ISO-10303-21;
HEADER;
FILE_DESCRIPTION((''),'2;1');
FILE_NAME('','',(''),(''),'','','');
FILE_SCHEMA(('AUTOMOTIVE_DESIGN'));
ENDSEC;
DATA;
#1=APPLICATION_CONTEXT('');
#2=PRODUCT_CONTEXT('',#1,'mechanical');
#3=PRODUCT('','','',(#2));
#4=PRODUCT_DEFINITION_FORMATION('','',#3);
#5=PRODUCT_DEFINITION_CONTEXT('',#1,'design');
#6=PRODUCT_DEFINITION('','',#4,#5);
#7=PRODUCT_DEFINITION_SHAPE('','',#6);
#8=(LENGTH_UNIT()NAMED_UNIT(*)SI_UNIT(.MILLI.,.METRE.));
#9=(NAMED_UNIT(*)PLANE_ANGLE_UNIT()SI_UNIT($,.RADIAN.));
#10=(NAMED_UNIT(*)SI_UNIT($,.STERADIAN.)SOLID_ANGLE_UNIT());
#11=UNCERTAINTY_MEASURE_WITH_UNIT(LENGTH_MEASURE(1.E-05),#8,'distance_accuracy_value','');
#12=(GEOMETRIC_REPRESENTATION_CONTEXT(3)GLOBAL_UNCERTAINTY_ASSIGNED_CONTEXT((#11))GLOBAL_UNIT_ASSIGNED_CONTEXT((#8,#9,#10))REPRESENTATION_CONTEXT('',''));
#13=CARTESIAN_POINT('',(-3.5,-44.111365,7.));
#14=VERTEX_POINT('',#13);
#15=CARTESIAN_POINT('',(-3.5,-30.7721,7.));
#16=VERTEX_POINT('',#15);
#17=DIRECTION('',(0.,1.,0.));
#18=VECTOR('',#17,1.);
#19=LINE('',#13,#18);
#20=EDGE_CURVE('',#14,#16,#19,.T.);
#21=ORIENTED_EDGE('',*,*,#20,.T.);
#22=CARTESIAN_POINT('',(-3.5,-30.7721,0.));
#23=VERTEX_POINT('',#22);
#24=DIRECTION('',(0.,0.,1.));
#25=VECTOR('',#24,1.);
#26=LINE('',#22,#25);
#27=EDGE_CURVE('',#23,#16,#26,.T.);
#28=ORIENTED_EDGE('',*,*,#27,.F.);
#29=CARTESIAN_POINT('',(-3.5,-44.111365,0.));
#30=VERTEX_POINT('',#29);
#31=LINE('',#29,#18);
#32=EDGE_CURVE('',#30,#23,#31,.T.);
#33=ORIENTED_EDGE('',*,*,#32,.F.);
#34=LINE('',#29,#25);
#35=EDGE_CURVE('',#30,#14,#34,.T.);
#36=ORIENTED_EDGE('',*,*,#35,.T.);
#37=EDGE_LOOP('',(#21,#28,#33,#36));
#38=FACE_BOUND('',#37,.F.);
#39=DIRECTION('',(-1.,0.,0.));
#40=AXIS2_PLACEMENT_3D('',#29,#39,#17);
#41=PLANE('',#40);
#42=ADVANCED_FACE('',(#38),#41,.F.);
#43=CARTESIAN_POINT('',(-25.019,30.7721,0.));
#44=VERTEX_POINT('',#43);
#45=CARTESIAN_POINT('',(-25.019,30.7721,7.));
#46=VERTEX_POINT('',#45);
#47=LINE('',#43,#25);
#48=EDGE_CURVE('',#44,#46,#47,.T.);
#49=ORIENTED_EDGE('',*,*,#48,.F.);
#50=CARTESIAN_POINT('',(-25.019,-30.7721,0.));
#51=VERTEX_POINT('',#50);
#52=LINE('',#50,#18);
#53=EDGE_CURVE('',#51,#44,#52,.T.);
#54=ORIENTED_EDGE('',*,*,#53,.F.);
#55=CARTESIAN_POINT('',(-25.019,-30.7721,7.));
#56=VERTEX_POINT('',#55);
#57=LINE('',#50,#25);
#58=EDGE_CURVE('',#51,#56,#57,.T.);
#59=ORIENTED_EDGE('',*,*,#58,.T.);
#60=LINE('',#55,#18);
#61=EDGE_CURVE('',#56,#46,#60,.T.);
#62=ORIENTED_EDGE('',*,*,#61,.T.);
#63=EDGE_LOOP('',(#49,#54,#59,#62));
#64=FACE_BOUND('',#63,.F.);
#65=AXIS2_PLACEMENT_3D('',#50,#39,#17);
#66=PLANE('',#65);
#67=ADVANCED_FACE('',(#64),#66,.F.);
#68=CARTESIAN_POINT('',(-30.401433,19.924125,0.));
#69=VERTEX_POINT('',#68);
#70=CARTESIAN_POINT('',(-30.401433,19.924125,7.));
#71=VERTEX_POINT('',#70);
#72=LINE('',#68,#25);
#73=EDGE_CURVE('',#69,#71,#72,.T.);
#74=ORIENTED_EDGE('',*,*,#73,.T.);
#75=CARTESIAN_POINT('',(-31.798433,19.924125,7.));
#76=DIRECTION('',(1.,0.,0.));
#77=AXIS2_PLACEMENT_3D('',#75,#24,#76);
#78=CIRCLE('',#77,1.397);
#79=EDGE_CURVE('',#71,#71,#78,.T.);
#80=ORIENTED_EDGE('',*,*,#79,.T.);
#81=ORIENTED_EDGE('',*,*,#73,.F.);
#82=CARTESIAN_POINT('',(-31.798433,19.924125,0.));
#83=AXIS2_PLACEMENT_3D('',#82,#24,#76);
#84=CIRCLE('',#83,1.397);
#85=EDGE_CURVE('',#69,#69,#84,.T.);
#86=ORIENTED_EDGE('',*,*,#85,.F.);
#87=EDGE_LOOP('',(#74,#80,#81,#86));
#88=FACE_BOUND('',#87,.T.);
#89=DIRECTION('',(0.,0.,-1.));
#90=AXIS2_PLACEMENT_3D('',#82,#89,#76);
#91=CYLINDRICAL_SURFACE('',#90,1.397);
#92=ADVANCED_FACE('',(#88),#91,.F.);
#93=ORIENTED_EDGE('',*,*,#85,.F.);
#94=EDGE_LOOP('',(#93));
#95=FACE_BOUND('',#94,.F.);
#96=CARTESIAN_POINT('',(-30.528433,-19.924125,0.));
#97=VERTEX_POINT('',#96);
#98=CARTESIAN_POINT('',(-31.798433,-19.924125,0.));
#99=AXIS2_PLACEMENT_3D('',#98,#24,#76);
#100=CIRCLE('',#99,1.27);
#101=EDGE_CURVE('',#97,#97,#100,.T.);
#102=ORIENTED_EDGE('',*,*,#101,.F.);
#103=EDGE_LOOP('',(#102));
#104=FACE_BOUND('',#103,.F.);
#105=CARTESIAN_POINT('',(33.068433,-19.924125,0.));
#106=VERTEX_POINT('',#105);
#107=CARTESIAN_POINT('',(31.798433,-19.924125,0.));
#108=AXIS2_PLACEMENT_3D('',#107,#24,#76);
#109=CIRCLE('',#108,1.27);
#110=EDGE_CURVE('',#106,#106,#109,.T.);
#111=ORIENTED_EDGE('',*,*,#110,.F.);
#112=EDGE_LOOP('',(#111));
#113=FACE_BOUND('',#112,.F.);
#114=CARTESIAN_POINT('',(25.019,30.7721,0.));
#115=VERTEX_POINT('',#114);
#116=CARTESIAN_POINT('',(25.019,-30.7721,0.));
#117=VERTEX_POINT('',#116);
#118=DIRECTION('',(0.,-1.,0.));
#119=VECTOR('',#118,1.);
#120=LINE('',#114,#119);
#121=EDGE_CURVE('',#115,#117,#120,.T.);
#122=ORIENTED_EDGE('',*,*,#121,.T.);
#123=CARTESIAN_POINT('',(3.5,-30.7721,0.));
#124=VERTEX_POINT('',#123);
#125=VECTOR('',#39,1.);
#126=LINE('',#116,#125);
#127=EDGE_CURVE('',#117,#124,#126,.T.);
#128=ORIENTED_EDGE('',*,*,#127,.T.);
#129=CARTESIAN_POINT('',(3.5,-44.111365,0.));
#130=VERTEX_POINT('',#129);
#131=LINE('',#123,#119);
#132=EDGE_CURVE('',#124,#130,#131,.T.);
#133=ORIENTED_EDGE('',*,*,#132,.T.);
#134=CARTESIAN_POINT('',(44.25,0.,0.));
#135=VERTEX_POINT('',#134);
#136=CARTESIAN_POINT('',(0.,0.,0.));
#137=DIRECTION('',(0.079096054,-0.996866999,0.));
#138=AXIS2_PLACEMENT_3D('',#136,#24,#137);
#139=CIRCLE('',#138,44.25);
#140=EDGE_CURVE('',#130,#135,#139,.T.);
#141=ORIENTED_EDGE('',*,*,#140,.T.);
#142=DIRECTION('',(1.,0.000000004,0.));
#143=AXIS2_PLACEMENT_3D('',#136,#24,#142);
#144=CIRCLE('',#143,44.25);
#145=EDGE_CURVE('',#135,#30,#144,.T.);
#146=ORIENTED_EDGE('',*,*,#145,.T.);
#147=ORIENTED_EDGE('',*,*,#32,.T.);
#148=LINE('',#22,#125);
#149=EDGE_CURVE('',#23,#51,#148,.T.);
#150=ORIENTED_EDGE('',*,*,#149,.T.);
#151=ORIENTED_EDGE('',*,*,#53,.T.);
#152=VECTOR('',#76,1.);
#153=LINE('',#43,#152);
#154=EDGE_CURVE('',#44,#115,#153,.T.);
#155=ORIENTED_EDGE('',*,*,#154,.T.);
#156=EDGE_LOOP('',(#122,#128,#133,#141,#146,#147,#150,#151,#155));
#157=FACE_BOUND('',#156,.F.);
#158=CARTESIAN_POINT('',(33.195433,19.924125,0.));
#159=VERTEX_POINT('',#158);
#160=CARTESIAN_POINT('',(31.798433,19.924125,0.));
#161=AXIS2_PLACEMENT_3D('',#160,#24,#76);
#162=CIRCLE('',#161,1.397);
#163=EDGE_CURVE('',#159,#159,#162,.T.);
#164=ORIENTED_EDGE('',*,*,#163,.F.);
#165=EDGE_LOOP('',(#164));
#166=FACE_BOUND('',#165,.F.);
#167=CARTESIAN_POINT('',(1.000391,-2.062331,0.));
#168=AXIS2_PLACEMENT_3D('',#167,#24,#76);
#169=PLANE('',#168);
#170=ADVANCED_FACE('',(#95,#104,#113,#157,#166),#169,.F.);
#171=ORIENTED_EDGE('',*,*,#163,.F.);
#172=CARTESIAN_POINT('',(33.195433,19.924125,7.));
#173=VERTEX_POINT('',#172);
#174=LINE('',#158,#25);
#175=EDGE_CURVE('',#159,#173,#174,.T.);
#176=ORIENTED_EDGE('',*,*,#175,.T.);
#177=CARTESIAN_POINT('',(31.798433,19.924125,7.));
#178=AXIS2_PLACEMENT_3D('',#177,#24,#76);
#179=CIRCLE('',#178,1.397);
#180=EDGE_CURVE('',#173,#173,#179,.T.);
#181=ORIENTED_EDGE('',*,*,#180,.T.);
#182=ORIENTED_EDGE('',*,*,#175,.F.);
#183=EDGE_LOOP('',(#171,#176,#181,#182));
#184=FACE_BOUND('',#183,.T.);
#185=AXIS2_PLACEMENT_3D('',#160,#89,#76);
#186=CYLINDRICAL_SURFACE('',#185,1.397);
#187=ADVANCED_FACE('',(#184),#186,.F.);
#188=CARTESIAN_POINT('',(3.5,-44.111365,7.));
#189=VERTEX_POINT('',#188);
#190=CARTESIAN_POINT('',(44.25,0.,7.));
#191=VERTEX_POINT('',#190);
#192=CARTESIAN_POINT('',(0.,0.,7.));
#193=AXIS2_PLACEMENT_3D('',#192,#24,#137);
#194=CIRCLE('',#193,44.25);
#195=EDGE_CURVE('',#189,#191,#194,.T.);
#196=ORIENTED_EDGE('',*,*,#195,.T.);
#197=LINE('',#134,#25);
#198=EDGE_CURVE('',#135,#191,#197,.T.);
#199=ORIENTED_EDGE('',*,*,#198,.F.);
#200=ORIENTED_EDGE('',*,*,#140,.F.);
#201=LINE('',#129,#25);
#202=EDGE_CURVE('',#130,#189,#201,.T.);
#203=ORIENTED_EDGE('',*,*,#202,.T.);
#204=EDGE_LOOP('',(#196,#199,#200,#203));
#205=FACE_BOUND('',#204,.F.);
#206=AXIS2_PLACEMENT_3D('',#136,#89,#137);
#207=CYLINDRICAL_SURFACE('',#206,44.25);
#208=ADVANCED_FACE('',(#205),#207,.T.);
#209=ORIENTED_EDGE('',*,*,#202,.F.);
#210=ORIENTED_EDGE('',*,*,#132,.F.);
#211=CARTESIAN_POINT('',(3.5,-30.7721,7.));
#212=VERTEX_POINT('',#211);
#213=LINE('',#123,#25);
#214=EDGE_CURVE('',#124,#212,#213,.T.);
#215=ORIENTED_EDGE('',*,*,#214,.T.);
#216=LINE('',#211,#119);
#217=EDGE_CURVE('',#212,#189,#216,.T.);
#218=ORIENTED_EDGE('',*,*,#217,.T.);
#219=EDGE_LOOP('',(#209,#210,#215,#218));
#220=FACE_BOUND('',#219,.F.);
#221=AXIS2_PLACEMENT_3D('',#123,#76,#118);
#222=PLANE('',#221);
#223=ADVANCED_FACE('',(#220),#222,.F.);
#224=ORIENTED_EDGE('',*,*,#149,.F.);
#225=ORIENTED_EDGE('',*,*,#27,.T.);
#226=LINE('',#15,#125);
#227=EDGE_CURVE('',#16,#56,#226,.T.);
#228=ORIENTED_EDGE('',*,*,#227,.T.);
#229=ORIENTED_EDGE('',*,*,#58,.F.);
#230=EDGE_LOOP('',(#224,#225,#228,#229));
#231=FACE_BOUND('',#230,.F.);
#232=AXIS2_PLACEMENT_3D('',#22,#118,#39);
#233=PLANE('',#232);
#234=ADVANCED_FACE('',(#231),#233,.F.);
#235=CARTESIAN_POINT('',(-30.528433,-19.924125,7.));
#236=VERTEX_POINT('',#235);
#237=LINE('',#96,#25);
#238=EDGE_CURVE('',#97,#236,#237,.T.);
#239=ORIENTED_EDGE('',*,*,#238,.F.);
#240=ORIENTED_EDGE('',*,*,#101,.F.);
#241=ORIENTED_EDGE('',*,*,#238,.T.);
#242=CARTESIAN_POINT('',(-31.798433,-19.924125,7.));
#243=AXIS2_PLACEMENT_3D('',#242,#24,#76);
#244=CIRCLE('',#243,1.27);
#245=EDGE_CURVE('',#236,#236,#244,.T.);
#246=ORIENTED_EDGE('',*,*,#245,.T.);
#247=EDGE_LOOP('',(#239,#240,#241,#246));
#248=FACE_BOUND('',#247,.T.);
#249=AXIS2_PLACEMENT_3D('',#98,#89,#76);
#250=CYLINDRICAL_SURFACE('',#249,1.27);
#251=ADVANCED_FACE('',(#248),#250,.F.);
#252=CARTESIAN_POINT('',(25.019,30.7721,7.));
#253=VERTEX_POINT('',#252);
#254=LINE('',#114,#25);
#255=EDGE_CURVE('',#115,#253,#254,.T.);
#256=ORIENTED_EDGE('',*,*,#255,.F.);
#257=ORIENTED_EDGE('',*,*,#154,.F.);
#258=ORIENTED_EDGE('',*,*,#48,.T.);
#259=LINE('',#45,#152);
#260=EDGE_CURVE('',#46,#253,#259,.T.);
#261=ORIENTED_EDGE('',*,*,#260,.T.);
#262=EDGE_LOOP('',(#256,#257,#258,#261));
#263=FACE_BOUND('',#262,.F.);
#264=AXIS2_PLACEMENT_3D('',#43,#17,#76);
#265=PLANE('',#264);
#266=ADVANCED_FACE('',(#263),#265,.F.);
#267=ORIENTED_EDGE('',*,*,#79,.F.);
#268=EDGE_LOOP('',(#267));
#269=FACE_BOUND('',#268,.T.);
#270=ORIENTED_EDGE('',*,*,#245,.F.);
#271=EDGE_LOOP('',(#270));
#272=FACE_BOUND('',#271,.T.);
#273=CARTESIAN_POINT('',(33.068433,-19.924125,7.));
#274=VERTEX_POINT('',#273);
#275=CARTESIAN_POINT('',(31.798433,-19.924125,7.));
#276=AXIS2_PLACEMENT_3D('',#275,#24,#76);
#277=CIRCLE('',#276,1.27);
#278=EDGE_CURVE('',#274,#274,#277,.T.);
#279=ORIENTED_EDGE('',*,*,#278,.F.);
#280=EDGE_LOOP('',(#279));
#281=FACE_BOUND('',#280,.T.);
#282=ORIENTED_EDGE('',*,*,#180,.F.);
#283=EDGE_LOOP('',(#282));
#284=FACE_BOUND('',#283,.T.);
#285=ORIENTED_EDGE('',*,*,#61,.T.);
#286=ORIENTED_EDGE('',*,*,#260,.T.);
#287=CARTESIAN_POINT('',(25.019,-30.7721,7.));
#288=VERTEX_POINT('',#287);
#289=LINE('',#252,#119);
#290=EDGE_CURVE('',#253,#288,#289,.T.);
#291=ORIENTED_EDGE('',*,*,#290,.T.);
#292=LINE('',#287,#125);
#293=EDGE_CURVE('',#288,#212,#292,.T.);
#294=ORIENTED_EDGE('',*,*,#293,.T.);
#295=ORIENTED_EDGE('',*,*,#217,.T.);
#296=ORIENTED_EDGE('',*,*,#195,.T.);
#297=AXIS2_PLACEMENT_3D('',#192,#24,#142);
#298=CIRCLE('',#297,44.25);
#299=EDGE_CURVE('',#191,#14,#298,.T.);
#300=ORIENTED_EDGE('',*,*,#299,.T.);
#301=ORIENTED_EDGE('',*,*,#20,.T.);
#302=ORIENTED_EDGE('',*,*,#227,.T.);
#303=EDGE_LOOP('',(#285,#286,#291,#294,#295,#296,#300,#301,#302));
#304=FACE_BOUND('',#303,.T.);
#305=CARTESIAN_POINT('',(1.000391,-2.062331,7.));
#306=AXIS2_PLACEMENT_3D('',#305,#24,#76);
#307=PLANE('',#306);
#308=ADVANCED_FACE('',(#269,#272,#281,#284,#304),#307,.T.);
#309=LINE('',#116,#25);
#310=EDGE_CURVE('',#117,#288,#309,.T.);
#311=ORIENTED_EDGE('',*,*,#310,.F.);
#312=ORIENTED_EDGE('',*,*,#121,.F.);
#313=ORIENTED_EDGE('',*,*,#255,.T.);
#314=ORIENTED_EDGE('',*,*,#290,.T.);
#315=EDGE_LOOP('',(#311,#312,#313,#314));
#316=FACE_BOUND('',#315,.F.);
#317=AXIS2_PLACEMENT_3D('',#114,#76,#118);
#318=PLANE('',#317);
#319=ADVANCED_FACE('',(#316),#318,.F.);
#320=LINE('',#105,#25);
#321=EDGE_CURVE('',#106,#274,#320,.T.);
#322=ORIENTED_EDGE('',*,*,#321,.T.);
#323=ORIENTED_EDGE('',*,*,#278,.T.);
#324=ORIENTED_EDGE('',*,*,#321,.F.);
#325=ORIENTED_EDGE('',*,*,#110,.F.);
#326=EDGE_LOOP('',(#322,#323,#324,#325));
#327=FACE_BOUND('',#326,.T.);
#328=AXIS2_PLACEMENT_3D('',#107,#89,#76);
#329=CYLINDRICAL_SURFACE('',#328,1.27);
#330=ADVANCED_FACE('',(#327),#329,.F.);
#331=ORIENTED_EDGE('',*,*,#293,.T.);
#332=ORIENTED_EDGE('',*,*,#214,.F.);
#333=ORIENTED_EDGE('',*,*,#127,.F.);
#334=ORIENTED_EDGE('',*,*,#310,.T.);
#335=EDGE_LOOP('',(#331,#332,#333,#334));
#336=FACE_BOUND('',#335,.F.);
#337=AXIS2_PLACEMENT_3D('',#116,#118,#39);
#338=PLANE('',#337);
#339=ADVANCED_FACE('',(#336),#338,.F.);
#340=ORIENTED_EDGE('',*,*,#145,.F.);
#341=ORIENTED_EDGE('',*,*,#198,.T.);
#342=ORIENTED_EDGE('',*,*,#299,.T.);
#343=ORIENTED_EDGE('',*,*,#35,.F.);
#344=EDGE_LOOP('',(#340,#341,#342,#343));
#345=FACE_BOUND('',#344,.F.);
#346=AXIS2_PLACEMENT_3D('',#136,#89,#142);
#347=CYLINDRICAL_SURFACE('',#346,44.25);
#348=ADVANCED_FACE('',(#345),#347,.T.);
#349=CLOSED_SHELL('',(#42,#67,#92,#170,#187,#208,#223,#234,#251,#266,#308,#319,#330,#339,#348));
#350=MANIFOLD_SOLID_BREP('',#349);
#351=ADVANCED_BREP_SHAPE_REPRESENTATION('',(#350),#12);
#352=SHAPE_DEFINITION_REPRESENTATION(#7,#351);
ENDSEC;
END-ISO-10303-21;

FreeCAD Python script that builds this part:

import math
import FreeCAD as App
import Part
import Sketcher
from FreeCAD import Vector
Q = App.Units.Quantity

doc = App.newDocument("Part")
body = doc.addObject("PartDesign::Body", "Body")

# Sketch on XY plane
sketch1 = body.newObject("Sketcher::SketchObject", "Sketch")
sketch1.AttachmentSupport = (doc.getObject("XY_Plane"), [""])
sketch1.MapMode = "FlatFace"
sketch1.addGeometry([
    Part.ArcOfCircle(Part.Circle(Vector(0, 0, 0), Vector(0, 0, 1), 44.25), math.radians(-85.463391), math.radians(0)),  # 0
    Part.ArcOfCircle(Part.Circle(Vector(0, 0, 0), Vector(0, 0, 1), 44.25), math.radians(0), math.radians(265.463392)),  # 1
    Part.LineSegment(Vector(-3.5, -44.111365, 0), Vector(-3.5, -30.7721, 0)),  # 2
    Part.LineSegment(Vector(-3.5, -30.7721, 0), Vector(-25.019, -30.7721, 0)),  # 3
    Part.LineSegment(Vector(-25.019, -30.7721, 0), Vector(-25.019, 30.7721, 0)),  # 4
    Part.LineSegment(Vector(-25.019, 30.7721, 0), Vector(25.019, 30.7721, 0)),  # 5
    Part.LineSegment(Vector(25.019, 30.7721, 0), Vector(25.019, -30.7721, 0)),  # 6
    Part.LineSegment(Vector(25.019, -30.7721, 0), Vector(3.5, -30.7721, 0)),  # 7
    Part.LineSegment(Vector(3.5, -30.7721, 0), Vector(3.5, -44.111365, 0)),  # 8
    Part.Circle(Vector(-31.798433, -19.924125, 0), Vector(0, 0, 1), 1.27),  # 9
    Part.Circle(Vector(31.798433, -19.924125, 0), Vector(0, 0, 1), 1.27),  # 10
    Part.Circle(Vector(-31.798433, 19.924125, 0), Vector(0, 0, 1), 1.397),  # 11
    Part.Circle(Vector(31.798433, 19.924125, 0), Vector(0, 0, 1), 1.397),  # 12
], False)
sketch1.addConstraint([
    Sketcher.Constraint("Tangent", 0, 2, 1, 1),
    Sketcher.Constraint("Coincident", 1, 2, 2, 1),
    Sketcher.Constraint("Coincident", 2, 2, 3, 1),
    Sketcher.Constraint("Coincident", 3, 2, 4, 1),
    Sketcher.Constraint("Coincident", 4, 2, 5, 1),
    Sketcher.Constraint("Coincident", 5, 2, 6, 1),
    Sketcher.Constraint("Coincident", 6, 2, 7, 1),
    Sketcher.Constraint("Coincident", 7, 2, 8, 1),
    Sketcher.Constraint("Coincident", 8, 2, 0, 1),
    Sketcher.Constraint("Vertical", 2),
    Sketcher.Constraint("Horizontal", 3),
    Sketcher.Constraint("Vertical", 4),
    Sketcher.Constraint("Horizontal", 5),
    Sketcher.Constraint("Vertical", 6),
    Sketcher.Constraint("Horizontal", 7),
    Sketcher.Constraint("Vertical", 8),
    Sketcher.Constraint("Coincident", 0, 3, -1, 1),
    Sketcher.Constraint("Equal", 0, 1),
    Sketcher.Constraint("Equal", 9, 10),
    Sketcher.Constraint("Equal", 11, 12),
    Sketcher.Constraint("Symmetric", 10, 3, 11, 3, -1, 1),
    Sketcher.Constraint("Symmetric", 9, 3, 12, 3, -1, 1),
    Sketcher.Constraint("Symmetric", 3, 2, 5, 2, -1, 1),
    Sketcher.Constraint("Symmetric", 9, 3, 10, 3, -2),
    Sketcher.Constraint("Symmetric", 2, 2, 7, 2, -2),
    Sketcher.Constraint("PointOnObject", 0, 2, -1),
    Sketcher.Constraint("Diameter", 9, Q("0.1 in")),
    Sketcher.Constraint("Diameter", 11, Q("0.11 in")),
    Sketcher.Constraint("DistanceX", 5, 1, 5, 2, Q("1.97 in")),
    Sketcher.Constraint("DistanceY", 4, 1, 4, 2, Q("2.423 in")),
    Sketcher.Constraint("Radius", 0, Q("44.25 mm")),
    Sketcher.Constraint("DistanceX", 3, 2, 3, 1, Q("21.519 mm")),
    Sketcher.Constraint("DistanceY", 9, 3, 11, 3, Q("39.84825 mm")),
    Sketcher.Constraint("DistanceX", 9, 3, -1, 1, Q("31.798433 mm")),
])
pad1 = body.newObject("PartDesign::Pad", "Pad")
pad1.Profile = sketch1
pad1.Length = 7

doc.recompute()
